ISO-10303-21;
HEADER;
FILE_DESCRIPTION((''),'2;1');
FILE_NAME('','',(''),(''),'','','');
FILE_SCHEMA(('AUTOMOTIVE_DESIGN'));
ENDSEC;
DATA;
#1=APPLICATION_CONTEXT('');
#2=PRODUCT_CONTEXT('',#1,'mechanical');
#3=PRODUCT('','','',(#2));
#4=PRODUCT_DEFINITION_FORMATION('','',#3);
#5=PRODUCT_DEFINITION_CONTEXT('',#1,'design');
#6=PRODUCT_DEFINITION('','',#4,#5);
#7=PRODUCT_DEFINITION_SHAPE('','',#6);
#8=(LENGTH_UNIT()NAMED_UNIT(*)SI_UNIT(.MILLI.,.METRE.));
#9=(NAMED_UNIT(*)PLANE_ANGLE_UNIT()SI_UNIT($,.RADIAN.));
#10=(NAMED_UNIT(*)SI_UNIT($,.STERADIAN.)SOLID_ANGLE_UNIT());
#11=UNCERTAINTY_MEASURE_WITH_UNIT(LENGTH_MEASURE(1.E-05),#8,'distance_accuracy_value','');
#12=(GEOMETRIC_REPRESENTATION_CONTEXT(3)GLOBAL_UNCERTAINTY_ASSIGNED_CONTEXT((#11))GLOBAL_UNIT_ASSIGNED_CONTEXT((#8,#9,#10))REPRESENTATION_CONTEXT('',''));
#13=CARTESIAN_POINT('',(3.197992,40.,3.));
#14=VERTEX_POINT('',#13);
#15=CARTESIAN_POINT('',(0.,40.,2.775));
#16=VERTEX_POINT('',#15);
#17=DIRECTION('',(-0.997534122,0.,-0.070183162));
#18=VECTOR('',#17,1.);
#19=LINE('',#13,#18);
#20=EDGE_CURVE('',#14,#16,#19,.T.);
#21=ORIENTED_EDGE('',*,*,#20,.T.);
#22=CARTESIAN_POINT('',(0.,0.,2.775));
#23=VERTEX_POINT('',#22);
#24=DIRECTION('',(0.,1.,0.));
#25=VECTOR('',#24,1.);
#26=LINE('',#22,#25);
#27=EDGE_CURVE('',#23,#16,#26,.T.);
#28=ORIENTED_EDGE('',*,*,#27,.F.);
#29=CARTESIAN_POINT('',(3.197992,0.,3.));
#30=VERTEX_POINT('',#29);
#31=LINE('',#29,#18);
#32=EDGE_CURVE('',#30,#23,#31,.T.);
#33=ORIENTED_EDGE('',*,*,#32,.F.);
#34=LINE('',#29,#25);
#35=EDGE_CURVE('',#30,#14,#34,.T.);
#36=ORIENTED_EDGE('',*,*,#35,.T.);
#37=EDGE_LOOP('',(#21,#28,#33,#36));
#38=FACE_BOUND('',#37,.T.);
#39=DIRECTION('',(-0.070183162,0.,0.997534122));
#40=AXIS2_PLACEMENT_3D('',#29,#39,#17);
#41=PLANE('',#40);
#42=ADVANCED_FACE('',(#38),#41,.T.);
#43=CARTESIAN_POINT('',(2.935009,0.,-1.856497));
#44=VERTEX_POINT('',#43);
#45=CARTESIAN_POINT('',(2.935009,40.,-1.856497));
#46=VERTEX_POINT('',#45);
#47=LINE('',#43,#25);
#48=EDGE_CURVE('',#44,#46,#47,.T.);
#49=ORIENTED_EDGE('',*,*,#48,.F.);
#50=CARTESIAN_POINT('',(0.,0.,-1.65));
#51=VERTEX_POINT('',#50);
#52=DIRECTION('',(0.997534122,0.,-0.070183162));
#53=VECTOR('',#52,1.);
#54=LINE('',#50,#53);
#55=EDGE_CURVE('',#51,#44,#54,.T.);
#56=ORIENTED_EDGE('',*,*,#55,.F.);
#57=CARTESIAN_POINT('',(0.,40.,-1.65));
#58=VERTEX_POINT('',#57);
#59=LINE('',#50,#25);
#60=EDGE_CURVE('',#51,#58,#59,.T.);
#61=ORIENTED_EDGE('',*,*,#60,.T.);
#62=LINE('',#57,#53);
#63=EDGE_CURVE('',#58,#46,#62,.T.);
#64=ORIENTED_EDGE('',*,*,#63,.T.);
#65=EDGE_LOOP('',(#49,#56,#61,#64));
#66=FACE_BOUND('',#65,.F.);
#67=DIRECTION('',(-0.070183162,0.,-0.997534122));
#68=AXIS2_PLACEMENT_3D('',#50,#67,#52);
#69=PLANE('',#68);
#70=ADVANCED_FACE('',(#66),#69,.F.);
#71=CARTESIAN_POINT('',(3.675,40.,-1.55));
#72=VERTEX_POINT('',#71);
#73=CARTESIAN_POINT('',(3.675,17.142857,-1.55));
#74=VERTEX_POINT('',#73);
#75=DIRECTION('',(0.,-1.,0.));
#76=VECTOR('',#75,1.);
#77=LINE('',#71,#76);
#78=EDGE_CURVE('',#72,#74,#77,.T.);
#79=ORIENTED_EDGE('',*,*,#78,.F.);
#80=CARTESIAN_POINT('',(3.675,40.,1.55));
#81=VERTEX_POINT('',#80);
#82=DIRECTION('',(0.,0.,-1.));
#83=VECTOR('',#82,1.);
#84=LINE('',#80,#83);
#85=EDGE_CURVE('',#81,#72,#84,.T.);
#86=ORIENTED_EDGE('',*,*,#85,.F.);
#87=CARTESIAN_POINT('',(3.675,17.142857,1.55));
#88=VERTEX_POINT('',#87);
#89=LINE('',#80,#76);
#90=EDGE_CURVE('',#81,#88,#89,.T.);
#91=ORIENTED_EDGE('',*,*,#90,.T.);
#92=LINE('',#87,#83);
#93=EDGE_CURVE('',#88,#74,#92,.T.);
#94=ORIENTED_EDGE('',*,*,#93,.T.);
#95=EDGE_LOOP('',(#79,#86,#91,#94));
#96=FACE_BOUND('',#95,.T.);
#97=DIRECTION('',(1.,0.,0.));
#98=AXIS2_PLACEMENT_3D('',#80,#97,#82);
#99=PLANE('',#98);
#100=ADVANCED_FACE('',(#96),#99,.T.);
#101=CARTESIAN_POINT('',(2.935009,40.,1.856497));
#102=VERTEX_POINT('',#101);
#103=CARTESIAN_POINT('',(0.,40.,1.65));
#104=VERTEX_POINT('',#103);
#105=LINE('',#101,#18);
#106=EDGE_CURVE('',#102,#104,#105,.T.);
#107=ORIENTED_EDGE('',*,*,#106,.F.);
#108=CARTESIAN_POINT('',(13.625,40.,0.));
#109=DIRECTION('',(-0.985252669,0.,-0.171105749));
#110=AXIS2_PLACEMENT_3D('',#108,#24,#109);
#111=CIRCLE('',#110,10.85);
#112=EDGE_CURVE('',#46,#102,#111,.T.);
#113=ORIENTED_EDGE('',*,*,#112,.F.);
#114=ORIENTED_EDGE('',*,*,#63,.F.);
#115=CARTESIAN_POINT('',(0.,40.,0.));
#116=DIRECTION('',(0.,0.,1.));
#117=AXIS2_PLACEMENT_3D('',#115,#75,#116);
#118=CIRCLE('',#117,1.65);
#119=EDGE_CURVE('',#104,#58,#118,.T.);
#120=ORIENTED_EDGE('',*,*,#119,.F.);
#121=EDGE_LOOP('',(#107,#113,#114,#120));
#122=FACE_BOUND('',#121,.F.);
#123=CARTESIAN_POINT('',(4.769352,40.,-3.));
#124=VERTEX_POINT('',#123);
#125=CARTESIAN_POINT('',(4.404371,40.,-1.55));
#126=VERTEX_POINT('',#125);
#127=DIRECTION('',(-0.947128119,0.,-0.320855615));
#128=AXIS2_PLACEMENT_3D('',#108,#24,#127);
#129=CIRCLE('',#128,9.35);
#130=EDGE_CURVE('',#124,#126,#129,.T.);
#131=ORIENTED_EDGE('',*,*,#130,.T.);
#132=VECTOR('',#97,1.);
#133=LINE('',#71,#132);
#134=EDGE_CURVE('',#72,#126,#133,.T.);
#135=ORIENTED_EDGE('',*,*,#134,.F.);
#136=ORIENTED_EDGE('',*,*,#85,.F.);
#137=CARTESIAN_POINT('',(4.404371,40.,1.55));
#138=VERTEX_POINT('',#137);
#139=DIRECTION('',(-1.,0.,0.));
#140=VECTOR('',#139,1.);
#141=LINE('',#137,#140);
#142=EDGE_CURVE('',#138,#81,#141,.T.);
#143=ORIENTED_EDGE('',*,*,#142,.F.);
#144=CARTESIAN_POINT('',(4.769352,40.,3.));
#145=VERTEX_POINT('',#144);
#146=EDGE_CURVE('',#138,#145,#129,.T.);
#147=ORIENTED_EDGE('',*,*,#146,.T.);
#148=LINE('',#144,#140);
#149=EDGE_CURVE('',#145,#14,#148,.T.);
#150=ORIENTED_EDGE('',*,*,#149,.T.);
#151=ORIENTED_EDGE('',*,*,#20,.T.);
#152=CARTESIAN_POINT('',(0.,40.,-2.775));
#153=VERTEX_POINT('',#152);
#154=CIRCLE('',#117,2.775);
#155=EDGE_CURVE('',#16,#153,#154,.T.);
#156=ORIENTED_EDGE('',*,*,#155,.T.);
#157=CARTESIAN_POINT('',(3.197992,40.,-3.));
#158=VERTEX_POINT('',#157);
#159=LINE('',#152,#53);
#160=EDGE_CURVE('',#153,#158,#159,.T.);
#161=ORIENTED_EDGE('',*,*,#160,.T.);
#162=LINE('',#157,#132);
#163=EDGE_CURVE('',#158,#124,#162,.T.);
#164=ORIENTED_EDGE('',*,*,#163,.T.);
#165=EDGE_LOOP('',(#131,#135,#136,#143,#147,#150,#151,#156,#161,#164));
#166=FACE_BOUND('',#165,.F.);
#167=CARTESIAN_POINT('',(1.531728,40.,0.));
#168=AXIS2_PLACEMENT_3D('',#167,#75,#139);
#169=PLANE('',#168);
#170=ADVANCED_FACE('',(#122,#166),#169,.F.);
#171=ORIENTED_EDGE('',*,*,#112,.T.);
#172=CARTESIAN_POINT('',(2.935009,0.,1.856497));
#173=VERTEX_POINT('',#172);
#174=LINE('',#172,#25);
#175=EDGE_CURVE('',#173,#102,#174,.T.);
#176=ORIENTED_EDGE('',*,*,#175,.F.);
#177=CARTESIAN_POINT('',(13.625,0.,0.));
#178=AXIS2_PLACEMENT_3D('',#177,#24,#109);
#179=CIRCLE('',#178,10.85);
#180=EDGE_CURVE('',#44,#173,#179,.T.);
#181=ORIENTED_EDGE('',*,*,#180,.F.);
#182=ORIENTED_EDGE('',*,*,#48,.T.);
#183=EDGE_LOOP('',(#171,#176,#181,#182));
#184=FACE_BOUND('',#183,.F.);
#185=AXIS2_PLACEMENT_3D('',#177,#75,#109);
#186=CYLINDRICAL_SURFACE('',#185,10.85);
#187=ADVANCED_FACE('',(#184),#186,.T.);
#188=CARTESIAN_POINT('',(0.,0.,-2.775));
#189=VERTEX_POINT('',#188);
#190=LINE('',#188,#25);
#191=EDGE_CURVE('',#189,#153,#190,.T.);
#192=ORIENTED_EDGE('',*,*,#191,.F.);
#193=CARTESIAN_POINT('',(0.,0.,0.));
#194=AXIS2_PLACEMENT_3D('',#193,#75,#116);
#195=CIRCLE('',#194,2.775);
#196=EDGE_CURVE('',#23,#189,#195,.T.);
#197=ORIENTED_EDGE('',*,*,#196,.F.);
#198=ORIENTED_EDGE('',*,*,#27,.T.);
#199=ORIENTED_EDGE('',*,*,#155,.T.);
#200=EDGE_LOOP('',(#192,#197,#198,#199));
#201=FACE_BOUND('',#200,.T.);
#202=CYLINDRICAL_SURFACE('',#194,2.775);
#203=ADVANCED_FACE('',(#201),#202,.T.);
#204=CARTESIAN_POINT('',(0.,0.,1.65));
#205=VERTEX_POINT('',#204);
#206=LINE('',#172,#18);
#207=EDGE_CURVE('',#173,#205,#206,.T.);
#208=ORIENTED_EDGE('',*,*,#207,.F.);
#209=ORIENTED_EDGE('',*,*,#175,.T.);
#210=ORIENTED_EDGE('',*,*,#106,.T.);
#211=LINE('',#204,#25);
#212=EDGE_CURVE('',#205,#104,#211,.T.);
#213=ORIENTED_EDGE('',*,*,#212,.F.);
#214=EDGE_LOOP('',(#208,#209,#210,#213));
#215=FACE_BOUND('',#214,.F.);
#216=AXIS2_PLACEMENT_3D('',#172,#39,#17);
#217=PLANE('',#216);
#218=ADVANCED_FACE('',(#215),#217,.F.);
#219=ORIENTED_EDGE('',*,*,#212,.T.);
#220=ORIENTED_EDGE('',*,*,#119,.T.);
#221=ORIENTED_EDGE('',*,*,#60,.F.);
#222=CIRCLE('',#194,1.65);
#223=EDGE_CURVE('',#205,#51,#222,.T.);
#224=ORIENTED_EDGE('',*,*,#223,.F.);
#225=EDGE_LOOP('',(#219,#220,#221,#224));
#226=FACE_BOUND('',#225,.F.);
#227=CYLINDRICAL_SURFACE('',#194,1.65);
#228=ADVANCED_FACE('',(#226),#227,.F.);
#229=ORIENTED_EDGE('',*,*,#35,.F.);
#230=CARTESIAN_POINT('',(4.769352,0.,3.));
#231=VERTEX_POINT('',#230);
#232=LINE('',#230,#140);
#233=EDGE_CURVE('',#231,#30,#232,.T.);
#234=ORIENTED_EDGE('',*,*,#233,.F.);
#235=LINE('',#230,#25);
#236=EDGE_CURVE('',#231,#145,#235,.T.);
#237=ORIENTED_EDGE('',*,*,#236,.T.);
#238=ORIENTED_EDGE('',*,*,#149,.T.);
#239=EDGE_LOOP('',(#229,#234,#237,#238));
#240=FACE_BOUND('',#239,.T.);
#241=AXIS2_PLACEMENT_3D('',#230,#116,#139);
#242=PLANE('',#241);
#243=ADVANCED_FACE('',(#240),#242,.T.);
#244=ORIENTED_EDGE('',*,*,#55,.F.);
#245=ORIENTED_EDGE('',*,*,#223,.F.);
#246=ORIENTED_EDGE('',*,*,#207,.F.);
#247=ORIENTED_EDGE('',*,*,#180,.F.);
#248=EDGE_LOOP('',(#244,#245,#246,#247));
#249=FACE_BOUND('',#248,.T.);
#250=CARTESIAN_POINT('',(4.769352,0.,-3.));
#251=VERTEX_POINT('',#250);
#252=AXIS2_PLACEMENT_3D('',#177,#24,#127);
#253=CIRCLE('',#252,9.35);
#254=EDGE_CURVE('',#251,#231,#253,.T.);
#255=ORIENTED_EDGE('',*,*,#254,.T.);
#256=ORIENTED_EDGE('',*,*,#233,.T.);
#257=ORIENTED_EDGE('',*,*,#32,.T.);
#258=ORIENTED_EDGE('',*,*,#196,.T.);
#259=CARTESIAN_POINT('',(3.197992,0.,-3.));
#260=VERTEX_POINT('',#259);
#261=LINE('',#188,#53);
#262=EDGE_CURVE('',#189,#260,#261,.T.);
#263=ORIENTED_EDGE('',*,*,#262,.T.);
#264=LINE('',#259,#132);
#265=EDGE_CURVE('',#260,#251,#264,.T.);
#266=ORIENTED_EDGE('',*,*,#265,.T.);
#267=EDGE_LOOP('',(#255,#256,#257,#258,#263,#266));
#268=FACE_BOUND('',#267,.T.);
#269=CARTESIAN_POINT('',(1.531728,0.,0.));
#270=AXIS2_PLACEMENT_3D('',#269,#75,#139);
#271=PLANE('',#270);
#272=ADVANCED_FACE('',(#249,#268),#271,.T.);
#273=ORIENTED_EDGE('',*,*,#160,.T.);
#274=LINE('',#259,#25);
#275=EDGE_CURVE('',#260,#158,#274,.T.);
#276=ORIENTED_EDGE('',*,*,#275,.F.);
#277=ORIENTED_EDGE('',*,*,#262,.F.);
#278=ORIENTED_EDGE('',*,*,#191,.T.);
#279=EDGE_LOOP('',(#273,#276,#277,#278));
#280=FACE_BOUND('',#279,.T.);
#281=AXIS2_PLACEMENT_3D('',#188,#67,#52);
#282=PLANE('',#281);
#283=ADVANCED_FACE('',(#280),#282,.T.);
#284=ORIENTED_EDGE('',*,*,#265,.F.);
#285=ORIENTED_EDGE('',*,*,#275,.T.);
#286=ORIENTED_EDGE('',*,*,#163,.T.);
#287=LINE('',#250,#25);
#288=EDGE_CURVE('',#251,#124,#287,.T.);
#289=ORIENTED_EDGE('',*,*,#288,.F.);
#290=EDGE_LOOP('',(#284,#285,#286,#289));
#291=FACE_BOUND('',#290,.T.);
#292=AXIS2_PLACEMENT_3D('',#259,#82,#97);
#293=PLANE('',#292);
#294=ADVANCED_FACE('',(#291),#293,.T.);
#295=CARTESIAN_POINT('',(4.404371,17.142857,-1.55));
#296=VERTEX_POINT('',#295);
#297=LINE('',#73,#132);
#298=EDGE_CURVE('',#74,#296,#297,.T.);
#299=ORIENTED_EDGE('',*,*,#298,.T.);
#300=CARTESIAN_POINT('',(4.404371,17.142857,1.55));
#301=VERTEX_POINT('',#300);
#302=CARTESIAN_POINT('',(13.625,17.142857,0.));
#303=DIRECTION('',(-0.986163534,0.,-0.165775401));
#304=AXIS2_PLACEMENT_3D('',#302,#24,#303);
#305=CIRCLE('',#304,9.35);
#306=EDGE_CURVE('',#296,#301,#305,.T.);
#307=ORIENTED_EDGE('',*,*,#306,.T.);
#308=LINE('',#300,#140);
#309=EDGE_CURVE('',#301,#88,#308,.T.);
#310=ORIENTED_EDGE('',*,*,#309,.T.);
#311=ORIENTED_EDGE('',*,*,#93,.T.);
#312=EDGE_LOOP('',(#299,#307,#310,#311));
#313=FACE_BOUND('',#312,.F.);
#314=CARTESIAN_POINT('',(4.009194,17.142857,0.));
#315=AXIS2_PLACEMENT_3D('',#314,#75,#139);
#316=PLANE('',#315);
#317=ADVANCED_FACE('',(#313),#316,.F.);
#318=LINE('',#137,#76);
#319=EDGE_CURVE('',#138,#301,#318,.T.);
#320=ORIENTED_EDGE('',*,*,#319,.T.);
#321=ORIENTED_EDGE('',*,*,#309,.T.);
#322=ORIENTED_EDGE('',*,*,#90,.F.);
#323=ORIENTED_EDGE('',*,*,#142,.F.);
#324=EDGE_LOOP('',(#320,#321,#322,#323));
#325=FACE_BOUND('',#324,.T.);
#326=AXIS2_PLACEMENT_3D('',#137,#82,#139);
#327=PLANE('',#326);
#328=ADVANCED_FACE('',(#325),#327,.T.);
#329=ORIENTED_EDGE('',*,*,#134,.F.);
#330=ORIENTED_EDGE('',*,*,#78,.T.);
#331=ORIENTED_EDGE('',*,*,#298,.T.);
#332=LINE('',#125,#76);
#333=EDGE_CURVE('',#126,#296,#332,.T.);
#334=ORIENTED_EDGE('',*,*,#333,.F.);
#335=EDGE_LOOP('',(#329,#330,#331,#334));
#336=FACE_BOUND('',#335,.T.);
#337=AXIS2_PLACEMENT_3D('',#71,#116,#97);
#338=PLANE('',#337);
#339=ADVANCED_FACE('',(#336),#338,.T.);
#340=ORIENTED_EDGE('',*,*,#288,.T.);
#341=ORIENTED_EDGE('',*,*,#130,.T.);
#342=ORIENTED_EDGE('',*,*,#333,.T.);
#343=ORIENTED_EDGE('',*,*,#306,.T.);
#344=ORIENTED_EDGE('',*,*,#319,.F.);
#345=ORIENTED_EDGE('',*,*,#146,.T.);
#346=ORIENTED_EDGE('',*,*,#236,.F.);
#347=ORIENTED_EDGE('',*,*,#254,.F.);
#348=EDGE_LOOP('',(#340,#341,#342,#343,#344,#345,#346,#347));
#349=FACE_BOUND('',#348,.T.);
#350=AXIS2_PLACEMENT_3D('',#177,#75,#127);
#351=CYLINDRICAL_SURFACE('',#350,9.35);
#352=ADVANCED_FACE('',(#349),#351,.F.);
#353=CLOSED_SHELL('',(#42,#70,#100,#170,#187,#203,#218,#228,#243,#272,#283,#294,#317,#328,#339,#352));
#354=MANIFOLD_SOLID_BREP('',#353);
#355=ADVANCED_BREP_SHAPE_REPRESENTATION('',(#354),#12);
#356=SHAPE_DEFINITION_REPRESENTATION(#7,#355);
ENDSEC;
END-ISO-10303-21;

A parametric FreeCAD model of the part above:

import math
import FreeCAD as App
import Part
import Sketcher

V = App.Vector

doc = App.newDocument("Part")
body = doc.addObject("PartDesign::Body", "Body")

# Sketch on XZ plane
sketch1 = doc.addObject("Sketcher::SketchObject", "Sketch")
body.addObject(sketch1)
sketch1.AttachmentSupport = (doc.XZ_Plane, [""])
sketch1.MapMode = "FlatFace"
sketch1.addGeometry([
    Part.LineSegment(V(3.2, -3, 0), V(0, -2.8, 0)),  # 0
    Part.ArcOfCircle(Part.Circle(V(0, 0, 0), V(0, 0, 1), 2.8), math.radians(90), math.radians(270)),  # 1
    Part.LineSegment(V(0, 2.8, 0), V(3.2, 3, 0)),  # 2
    Part.LineSegment(V(3.2, 3, 0), V(4.8, 3, 0)),  # 3
    Part.ArcOfCircle(Part.Circle(V(13.6, 0, 0), V(0, 0, 1), 9.3), math.radians(161), math.radians(199)),  # 4
    Part.LineSegment(V(4.8, -3, 0), V(3.2, -3, 0)),  # 5
    Part.LineSegment(V(0, -1.6, 0), V(2.9, -1.9, 0)),  # 6
    Part.ArcOfCircle(Part.Circle(V(13.6, 0, 0), V(0, 0, 1), 10.8), math.radians(170.15), math.radians(189.85)),  # 7
    Part.LineSegment(V(2.9, 1.9, 0), V(0, 1.6, 0)),  # 8
    Part.ArcOfCircle(Part.Circle(V(0, 0, 0), V(0, 0, 1), 1.6), math.radians(90), math.radians(270)),  # 9
], False)
sketch1.addConstraint([
    Sketcher.Constraint("Coincident", 0, 2, 1, 2),
    Sketcher.Constraint("Coincident", 1, 1, 2, 1),
    Sketcher.Constraint("Coincident", 2, 2, 3, 1),
    Sketcher.Constraint("Coincident", 3, 2, 4, 1),
    Sketcher.Constraint("Coincident", 4, 2, 5, 1),
    Sketcher.Constraint("Coincident", 5, 2, 0, 1),
    Sketcher.Constraint("Coincident", 6, 2, 7, 2),
    Sketcher.Constraint("Coincident", 7, 1, 8, 1),
    Sketcher.Constraint("Coincident", 8, 2, 9, 1),
    Sketcher.Constraint("Coincident", 9, 2, 6, 1),
    Sketcher.Constraint("Horizontal", 3),
    Sketcher.Constraint("Horizontal", 5),
    Sketcher.Constraint("Coincident", 1, 3, -1, 1),
    Sketcher.Constraint("Coincident", 9, 3, -1, 1),
    Sketcher.Constraint("Coincident", 7, 3, 4, 3),
    Sketcher.Constraint("Symmetric", 3, 2, 4, 2, -1),
    Sketcher.Constraint("PointOnObject", 0, 2, -2),
    Sketcher.Constraint("PointOnObject", 1, 1, -2),
    Sketcher.Constraint("PointOnObject", 8, 2, -2),
    Sketcher.Constraint("PointOnObject", 9, 2, -2),
    Sketcher.Constraint("Parallel", 0, 6),
    Sketcher.Constraint("Parallel", 2, 8),
    Sketcher.Constraint("Vertical", 2, 2, 5, 2),
    Sketcher.Constraint("Radius", 4, 9.35),
    Sketcher.Constraint("Radius", 7, 10.85),
    Sketcher.Constraint("Radius", 9, 1.65),
    Sketcher.Constraint("DistanceY", -1, 1, 2, 2, 3.0),
    Sketcher.Constraint("Radius", 1, 2.775),
    Sketcher.Constraint("DistanceX", -1, 1, 4, 3, 13.625),
    Sketcher.Constraint("DistanceX", 3, 1, 3, 2, 1.57136),
])
pad1 = doc.addObject("PartDesign::Pad", "Pad")
body.addObject(pad1)
pad1.Profile = sketch1
pad1.Length = 40
pad1.Reversed = True

# Sketch on XZ plane
sketch2 = doc.addObject("Sketcher::SketchObject", "Sketch001")
body.addObject(sketch2)
sketch2.AttachmentSupport = (doc.XZ_Plane, [""])
sketch2.MapMode = "FlatFace"
sketch2.AttachmentOffset = App.Placement(V(0, 0, -40), App.Rotation())
sketch2.addGeometry([
    Part.LineSegment(V(4.4, -1.6, 0), V(3.7, -1.6, 0)),
    Part.LineSegment(V(3.7, -1.6, 0), V(3.7, 1.6, 0)),
    Part.LineSegment(V(3.7, 1.6, 0), V(4.4, 1.6, 0)),
    Part.ArcOfCircle(Part.Circle(V(13.6, 0, 0), V(0, 0, 1), 9.4), math.radians(170.46), math.radians(189.54)),
], False)
sketch2.addConstraint([
    Sketcher.Constraint("Coincident", 0, 2, 1, 1),
    Sketcher.Constraint("Coincident", 1, 2, 2, 1),
    Sketcher.Constraint("Coincident", 2, 2, 3, 1),
    Sketcher.Constraint("Coincident", 3, 2, 0, 1),
    Sketcher.Constraint("Horizontal", 0),
    Sketcher.Constraint("Vertical", 1),
    Sketcher.Constraint("Horizontal", 2),
    Sketcher.Constraint("Symmetric", 2, 2, 3, 2, -1),
    Sketcher.Constraint("Radius", 3, 9.35),
    Sketcher.Constraint("DistanceY", 1, 1, 1, 2, 3.1),
    Sketcher.Constraint("DistanceX", 0, 2, 3, 3, 9.95),
    Sketcher.Constraint("DistanceX", -1, 1, 3, 3, 13.625),
])
pocket1 = doc.addObject("PartDesign::Pocket", "Pocket")
body.addObject(pocket1)
pocket1.Profile = sketch2
pocket1.Length = 22.857143
pocket1.Reversed = True

doc.recompute()
